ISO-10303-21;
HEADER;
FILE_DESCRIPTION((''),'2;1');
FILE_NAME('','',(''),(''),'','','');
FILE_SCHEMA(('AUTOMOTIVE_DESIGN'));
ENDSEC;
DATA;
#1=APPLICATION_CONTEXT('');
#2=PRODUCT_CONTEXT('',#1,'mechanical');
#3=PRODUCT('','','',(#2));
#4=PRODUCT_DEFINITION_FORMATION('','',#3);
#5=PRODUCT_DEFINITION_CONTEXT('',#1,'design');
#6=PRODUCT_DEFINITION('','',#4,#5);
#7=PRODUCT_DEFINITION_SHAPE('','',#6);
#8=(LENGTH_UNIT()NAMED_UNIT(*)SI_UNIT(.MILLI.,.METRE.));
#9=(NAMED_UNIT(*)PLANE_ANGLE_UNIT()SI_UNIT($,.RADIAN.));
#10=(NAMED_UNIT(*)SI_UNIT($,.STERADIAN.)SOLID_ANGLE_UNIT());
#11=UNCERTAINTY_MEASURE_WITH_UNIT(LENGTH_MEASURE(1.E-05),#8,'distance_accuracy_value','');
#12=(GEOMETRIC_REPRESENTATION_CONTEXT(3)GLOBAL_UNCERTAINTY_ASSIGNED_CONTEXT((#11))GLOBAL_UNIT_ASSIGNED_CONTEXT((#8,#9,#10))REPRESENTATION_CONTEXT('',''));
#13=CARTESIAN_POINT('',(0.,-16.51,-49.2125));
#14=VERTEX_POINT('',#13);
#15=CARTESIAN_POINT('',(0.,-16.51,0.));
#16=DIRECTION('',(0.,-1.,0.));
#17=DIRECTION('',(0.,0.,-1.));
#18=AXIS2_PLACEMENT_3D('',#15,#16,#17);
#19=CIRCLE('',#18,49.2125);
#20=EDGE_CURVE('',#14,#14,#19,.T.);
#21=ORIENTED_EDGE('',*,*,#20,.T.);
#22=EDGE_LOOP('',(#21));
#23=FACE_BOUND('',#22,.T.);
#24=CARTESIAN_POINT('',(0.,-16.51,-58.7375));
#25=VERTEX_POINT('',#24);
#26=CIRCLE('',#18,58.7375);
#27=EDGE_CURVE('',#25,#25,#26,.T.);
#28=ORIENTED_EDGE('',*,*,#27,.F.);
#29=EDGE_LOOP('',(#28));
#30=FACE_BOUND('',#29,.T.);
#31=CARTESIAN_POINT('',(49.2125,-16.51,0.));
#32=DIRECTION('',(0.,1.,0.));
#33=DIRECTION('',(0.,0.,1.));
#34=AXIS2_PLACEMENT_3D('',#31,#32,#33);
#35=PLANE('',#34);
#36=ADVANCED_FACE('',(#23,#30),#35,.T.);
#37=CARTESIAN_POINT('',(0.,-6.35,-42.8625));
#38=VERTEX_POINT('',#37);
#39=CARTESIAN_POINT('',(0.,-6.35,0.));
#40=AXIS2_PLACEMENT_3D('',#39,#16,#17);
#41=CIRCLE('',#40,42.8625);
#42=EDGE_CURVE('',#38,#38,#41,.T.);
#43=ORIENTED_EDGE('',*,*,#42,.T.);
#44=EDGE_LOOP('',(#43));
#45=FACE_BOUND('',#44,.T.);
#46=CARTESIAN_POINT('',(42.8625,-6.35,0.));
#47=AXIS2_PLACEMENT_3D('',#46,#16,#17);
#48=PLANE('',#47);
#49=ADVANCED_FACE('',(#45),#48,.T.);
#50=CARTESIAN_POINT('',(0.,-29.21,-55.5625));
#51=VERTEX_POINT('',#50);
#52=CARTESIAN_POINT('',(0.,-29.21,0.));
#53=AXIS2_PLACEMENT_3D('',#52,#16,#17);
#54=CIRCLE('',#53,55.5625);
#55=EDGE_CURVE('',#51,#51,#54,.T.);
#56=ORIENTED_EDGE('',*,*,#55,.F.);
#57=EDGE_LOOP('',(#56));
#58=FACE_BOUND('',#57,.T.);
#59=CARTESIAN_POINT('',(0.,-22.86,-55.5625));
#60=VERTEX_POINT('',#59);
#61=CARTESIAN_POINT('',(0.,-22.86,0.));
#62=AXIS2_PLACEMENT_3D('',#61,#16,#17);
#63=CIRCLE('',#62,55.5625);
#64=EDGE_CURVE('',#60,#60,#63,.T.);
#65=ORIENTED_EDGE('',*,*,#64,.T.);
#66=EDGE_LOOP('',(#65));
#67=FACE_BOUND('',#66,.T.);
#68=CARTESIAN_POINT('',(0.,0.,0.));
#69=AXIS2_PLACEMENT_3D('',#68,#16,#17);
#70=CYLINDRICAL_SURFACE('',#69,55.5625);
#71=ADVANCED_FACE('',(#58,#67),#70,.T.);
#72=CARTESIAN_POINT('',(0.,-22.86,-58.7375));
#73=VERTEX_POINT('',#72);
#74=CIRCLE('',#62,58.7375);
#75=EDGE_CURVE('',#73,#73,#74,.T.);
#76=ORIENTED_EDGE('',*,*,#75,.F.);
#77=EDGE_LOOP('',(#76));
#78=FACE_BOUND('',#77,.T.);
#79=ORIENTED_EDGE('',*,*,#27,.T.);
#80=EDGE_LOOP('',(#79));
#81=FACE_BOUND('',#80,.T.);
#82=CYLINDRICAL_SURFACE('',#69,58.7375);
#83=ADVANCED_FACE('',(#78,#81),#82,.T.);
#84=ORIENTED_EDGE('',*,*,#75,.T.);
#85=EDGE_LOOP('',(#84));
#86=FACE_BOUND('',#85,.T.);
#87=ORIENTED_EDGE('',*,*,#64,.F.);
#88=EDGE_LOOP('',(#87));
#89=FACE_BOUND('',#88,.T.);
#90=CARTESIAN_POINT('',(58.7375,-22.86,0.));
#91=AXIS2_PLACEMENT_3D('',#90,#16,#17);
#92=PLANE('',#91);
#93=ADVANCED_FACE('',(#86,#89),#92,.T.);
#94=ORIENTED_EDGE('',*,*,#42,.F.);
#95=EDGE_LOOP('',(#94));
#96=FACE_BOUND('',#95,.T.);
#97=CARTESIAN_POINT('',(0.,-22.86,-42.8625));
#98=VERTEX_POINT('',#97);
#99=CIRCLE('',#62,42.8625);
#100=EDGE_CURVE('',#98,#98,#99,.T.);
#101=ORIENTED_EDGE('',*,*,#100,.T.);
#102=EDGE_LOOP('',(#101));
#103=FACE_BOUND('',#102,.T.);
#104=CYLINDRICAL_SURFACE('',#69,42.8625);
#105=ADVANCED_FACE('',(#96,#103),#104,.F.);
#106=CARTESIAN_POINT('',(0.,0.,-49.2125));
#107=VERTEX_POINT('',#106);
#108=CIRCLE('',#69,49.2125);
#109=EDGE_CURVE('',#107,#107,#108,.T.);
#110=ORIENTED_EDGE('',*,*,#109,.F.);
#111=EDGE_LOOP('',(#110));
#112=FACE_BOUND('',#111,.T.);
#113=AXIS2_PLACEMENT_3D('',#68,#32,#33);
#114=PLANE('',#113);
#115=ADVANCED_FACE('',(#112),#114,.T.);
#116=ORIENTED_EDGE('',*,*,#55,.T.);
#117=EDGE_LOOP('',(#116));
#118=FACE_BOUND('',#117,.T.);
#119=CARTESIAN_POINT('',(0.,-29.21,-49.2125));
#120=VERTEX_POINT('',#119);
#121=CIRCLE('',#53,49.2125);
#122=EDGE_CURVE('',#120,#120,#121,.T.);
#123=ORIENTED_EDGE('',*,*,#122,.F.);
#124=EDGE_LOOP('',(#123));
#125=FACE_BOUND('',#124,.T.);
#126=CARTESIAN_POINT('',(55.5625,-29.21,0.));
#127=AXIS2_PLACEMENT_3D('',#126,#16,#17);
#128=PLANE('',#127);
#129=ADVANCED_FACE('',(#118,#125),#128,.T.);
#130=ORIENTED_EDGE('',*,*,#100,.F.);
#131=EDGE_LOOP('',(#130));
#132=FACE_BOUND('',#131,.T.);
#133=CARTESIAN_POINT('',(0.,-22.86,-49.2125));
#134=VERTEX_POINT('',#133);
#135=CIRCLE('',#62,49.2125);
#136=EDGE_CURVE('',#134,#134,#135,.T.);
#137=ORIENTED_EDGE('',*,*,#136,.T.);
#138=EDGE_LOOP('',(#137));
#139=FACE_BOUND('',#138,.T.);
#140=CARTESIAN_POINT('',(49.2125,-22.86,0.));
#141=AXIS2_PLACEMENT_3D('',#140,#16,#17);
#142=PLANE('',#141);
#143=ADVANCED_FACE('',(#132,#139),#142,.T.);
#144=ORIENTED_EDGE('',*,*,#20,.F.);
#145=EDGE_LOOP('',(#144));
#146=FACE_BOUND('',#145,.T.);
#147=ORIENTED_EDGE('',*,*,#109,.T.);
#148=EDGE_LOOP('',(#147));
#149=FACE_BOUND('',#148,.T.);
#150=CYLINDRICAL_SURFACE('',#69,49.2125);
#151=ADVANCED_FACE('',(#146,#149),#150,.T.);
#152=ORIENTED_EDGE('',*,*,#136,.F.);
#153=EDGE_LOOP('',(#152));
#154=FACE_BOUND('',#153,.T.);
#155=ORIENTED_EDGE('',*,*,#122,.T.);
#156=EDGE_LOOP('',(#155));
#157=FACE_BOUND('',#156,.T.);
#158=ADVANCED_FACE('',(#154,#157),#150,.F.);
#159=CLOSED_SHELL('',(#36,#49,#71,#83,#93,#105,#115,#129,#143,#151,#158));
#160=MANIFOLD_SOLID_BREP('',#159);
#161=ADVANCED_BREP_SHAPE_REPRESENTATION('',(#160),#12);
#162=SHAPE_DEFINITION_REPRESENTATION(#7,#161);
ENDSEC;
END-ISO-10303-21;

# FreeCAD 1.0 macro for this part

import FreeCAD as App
import Part
import Sketcher

V = App.Vector
Q = App.Units.Quantity

doc = App.newDocument("Part")
body = doc.addObject("PartDesign::Body", "Body")

# Sketch on XY plane
sketch1 = body.newObject("Sketcher::SketchObject", "Sketch")
sketch1.AttachmentSupport = (doc.getObject("XY_Plane"), [""])
sketch1.MapMode = "FlatFace"
sketch1.addGeometry(Part.LineSegment(V(49.2, 0, 0), V(0, 0, 0)), False)
sketch1.addGeometry(Part.LineSegment(V(0, 0, 0), V(0, -6.3, 0)), False)
sketch1.addGeometry(Part.LineSegment(V(0, -6.3, 0), V(42.9, -6.3, 0)), False)
sketch1.addGeometry(Part.LineSegment(V(42.9, -6.3, 0), V(42.9, -22.9, 0)), False)
sketch1.addGeometry(Part.LineSegment(V(42.9, -22.9, 0), V(49.2, -22.9, 0)), False)
sketch1.addGeometry(Part.LineSegment(V(49.2, -22.9, 0), V(49.2, -29.2, 0)), False)
sketch1.addGeometry(Part.LineSegment(V(49.2, -29.2, 0), V(55.6, -29.2, 0)), False)
sketch1.addGeometry(Part.LineSegment(V(55.6, -29.2, 0), V(55.6, -22.9, 0)), False)
sketch1.addGeometry(Part.LineSegment(V(55.6, -22.9, 0), V(58.7, -22.9, 0)), False)
sketch1.addGeometry(Part.LineSegment(V(58.7, -22.9, 0), V(58.7, -16.5, 0)), False)
sketch1.addGeometry(Part.LineSegment(V(58.7, -16.5, 0), V(49.2, -16.5, 0)), False)
sketch1.addGeometry(Part.LineSegment(V(49.2, -16.5, 0), V(49.2, 0, 0)), False)
sketch1.addConstraint(Sketcher.Constraint("Coincident", 0, 2, 1, 1))
sketch1.addConstraint(Sketcher.Constraint("Coincident", 1, 2, 2, 1))
sketch1.addConstraint(Sketcher.Constraint("Coincident", 2, 2, 3, 1))
sketch1.addConstraint(Sketcher.Constraint("Coincident", 3, 2, 4, 1))
sketch1.addConstraint(Sketcher.Constraint("Coincident", 4, 2, 5, 1))
sketch1.addConstraint(Sketcher.Constraint("Coincident", 5, 2, 6, 1))
sketch1.addConstraint(Sketcher.Constraint("Coincident", 6, 2, 7, 1))
sketch1.addConstraint(Sketcher.Constraint("Coincident", 7, 2, 8, 1))
sketch1.addConstraint(Sketcher.Constraint("Coincident", 8, 2, 9, 1))
sketch1.addConstraint(Sketcher.Constraint("Coincident", 9, 2, 10, 1))
sketch1.addConstraint(Sketcher.Constraint("Coincident", 10, 2, 11, 1))
sketch1.addConstraint(Sketcher.Constraint("Coincident", 11, 2, 0, 1))
sketch1.addConstraint(Sketcher.Constraint("Horizontal", 0))
sketch1.addConstraint(Sketcher.Constraint("Vertical", 1))
sketch1.addConstraint(Sketcher.Constraint("Horizontal", 2))
sketch1.addConstraint(Sketcher.Constraint("Vertical", 3))
sketch1.addConstraint(Sketcher.Constraint("Horizontal", 4))
sketch1.addConstraint(Sketcher.Constraint("Vertical", 5))
sketch1.addConstraint(Sketcher.Constraint("Horizontal", 6))
sketch1.addConstraint(Sketcher.Constraint("Vertical", 7))
sketch1.addConstraint(Sketcher.Constraint("Horizontal", 8))
sketch1.addConstraint(Sketcher.Constraint("Vertical", 9))
sketch1.addConstraint(Sketcher.Constraint("Horizontal", 10))
sketch1.addConstraint(Sketcher.Constraint("Vertical", 11))
sketch1.addConstraint(Sketcher.Constraint("Coincident", 0, 2, -1, 1))
sketch1.addConstraint(Sketcher.Constraint("Horizontal", 4, 2, 7, 2))
sketch1.addConstraint(Sketcher.Constraint("Vertical", 5, 2, 10, 2))
sketch1.addConstraint(Sketcher.Constraint("Equal", 4, 6))
sketch1.addConstraint(Sketcher.Constraint("Equal", 6, 1))
sketch1.addConstraint(Sketcher.Constraint("Equal", 1, 5))
sketch1.addConstraint(Sketcher.Constraint("Equal", 7, 9))
sketch1.addConstraint(Sketcher.Constraint("DistanceX", 4, 1, 4, 2, Q("0.25 in")))
sketch1.addConstraint(Sketcher.Constraint("DistanceY", 3, 2, 3, 1, Q("0.65 in")))
sketch1.addConstraint(Sketcher.Constraint("DistanceX", 0, 2, 0, 1, Q("1.9375 in")))
sketch1.addConstraint(Sketcher.Constraint("DistanceX", 8, 1, 8, 2, Q("0.125 in")))
revolution = body.newObject("PartDesign::Revolution", "Revolution")
revolution.Profile = sketch1
revolution.ReferenceAxis = (sketch1, ["V_Axis"])
revolution.Angle = 360

doc.recompute()
